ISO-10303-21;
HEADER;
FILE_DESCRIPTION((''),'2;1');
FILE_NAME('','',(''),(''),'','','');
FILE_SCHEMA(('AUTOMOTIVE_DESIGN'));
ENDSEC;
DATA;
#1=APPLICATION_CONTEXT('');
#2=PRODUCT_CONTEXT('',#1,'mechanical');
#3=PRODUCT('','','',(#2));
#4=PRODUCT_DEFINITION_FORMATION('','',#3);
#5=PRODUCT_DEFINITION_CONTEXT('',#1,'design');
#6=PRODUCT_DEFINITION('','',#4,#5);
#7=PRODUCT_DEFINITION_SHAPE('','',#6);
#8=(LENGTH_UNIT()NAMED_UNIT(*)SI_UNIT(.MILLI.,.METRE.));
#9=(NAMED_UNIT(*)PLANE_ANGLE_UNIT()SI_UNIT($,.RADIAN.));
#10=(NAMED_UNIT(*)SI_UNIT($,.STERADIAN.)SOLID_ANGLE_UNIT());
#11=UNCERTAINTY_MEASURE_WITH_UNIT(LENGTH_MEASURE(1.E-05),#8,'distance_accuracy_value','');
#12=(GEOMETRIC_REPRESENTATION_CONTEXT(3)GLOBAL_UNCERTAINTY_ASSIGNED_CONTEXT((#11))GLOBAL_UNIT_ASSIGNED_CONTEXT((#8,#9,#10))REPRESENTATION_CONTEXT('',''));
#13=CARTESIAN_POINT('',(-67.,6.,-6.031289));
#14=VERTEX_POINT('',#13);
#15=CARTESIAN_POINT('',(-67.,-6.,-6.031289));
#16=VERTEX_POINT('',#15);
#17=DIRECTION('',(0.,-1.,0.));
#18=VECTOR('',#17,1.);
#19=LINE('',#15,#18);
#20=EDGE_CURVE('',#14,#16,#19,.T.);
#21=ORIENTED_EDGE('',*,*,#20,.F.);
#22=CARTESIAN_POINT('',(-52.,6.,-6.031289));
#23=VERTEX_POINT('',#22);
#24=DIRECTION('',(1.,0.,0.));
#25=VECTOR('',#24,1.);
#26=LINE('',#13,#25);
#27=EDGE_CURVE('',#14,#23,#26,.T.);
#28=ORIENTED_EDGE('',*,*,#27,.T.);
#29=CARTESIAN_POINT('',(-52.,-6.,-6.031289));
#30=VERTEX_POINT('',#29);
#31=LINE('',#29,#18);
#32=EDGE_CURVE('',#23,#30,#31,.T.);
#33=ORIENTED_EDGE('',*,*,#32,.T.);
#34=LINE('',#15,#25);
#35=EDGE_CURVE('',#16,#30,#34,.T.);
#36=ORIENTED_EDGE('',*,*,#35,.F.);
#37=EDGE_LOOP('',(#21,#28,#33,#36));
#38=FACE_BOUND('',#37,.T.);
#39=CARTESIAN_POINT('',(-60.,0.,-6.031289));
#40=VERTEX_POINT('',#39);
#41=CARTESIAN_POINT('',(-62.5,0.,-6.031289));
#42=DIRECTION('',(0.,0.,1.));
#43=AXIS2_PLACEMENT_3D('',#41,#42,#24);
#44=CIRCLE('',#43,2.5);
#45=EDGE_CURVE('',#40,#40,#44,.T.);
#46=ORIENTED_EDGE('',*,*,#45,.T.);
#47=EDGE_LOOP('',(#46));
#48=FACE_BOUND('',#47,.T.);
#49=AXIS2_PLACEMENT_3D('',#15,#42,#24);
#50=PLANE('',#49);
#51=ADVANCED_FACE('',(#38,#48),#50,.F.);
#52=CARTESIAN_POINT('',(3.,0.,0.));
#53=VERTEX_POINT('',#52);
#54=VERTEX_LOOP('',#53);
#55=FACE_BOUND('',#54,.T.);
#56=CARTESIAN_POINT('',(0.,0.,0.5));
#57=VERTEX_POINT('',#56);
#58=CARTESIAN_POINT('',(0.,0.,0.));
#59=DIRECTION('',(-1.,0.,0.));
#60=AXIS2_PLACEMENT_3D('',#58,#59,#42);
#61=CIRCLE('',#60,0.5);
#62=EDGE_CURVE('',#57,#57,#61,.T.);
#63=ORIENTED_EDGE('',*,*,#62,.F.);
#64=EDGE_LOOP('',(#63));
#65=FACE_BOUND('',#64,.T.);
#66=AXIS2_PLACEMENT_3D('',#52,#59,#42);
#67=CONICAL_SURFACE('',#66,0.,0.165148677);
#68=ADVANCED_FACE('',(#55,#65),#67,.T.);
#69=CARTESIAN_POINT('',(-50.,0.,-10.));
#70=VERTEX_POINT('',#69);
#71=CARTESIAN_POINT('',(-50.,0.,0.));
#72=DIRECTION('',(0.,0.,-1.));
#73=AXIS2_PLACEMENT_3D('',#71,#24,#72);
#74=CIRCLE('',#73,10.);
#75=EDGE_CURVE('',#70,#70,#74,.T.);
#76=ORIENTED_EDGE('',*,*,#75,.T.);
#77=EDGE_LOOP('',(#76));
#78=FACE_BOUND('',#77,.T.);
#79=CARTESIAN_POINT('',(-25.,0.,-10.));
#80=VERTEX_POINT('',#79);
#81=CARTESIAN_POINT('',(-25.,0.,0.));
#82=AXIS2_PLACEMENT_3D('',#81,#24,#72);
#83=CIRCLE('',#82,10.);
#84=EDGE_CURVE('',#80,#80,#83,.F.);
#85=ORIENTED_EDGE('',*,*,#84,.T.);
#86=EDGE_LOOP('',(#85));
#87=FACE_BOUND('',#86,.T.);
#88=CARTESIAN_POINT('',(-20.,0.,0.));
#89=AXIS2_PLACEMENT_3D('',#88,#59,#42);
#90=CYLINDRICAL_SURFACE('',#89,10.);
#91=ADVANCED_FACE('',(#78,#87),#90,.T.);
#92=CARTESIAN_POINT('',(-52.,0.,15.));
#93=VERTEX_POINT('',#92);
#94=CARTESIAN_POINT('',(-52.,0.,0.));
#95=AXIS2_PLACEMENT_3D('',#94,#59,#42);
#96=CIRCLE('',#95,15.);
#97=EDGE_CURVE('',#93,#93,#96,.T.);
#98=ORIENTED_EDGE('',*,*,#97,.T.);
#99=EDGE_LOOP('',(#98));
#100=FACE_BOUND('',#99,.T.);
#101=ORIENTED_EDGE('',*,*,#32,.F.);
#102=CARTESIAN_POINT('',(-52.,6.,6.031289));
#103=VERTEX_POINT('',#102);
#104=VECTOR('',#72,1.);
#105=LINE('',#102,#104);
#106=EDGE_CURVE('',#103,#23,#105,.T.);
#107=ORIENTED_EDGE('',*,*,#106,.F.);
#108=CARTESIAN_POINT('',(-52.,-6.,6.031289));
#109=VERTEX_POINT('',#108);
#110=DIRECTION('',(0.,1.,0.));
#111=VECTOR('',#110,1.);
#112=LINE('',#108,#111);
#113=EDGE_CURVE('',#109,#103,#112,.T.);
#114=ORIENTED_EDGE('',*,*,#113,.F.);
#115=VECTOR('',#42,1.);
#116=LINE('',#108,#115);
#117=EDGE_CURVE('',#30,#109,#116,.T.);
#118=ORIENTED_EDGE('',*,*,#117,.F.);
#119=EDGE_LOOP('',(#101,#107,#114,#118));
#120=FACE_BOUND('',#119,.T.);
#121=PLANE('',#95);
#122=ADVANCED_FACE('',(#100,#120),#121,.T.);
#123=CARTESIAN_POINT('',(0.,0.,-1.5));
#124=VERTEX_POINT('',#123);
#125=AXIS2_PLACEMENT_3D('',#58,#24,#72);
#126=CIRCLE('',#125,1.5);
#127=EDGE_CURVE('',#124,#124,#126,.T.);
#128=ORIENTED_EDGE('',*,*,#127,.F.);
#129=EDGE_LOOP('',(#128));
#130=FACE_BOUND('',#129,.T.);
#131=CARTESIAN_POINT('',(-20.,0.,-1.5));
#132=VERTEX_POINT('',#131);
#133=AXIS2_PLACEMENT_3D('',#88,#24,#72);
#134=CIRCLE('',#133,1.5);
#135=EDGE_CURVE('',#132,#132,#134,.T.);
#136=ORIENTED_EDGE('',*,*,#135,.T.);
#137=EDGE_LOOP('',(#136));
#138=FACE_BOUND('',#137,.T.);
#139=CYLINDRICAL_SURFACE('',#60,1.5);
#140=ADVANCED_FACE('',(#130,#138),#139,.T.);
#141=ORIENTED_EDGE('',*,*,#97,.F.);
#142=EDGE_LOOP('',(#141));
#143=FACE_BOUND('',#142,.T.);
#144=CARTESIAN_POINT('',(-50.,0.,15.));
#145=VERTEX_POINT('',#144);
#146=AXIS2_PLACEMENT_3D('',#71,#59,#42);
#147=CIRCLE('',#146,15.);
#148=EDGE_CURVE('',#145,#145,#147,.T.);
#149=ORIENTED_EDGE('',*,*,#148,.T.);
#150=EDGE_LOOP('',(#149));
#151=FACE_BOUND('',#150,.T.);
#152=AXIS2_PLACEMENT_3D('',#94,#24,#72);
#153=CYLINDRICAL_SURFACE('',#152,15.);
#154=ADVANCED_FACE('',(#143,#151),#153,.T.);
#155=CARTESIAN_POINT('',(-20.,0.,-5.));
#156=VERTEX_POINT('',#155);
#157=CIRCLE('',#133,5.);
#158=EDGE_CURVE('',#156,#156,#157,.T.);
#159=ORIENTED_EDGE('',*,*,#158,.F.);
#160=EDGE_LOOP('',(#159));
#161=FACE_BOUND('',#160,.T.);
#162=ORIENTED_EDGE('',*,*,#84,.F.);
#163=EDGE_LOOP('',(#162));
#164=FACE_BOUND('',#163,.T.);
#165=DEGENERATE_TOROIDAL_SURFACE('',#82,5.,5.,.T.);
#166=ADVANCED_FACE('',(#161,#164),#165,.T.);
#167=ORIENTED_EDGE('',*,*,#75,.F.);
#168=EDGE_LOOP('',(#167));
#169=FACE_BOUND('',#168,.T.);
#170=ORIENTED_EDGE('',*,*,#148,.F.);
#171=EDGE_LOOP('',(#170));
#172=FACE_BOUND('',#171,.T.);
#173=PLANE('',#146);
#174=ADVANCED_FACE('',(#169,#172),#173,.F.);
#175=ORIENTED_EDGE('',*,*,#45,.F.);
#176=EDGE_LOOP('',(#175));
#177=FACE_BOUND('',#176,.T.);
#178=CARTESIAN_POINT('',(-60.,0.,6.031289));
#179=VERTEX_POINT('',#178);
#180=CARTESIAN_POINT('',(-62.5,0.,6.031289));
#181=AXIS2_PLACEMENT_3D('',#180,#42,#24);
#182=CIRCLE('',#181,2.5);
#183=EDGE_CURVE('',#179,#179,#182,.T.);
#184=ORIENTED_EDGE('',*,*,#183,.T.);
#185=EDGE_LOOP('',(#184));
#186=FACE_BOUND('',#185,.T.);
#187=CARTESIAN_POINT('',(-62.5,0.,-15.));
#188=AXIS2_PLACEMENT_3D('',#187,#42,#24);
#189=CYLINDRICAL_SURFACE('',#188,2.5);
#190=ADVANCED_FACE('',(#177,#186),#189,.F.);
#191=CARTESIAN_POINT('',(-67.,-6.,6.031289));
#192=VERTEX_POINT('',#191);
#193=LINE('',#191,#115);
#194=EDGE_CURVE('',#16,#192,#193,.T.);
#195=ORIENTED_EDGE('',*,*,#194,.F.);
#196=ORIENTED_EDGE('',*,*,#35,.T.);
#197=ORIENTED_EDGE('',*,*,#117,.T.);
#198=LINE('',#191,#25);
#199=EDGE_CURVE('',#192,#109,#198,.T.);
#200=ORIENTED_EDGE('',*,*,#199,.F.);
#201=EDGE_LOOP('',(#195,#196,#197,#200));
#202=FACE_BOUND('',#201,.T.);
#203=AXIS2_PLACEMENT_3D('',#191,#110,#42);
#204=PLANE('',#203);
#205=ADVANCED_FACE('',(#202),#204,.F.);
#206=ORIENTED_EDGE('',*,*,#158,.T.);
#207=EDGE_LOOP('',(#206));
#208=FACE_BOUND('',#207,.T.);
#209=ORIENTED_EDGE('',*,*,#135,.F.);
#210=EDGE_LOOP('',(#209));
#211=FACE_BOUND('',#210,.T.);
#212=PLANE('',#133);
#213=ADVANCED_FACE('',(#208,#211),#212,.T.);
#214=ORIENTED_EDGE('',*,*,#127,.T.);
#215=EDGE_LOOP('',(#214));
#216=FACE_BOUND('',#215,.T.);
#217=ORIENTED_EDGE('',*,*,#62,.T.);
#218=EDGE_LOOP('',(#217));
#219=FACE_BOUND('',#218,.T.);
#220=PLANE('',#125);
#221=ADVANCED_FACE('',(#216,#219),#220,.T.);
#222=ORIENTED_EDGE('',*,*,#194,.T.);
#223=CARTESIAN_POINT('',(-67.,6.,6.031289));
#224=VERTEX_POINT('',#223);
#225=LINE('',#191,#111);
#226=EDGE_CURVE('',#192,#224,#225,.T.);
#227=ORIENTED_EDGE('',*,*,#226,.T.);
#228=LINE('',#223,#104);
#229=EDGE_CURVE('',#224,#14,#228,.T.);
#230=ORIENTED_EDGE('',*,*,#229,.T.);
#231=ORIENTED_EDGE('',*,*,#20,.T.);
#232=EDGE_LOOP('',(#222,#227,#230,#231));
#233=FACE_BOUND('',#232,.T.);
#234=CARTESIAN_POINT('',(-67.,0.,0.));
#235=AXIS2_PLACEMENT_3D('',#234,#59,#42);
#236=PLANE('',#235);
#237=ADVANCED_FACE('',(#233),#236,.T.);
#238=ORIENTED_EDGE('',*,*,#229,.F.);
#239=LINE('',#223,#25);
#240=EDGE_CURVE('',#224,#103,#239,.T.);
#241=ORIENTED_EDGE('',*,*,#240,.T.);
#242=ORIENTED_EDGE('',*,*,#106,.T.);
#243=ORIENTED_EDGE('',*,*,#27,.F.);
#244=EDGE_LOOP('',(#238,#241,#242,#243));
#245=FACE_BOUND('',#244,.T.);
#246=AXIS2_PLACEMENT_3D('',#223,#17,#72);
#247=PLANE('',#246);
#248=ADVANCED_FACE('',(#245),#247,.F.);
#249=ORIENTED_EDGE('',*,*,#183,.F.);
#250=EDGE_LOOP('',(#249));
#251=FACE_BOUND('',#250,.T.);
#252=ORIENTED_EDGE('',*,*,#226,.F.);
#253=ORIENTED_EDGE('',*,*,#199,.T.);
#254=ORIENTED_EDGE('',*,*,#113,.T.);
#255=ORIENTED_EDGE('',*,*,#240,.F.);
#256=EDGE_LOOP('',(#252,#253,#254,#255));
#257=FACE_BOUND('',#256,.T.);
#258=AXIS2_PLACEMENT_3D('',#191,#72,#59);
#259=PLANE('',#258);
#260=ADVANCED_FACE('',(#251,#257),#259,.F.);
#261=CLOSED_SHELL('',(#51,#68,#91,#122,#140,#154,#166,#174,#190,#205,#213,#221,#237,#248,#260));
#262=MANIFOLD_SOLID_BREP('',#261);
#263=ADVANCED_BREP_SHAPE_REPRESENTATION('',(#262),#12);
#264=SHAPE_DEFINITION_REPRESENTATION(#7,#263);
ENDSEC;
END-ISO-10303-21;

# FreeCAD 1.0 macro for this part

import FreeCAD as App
import Part
import Sketcher
from FreeCAD import Vector
Q = App.Units.Quantity


def edges_at(feature, points):
    """Names of the edges that pass closest to the given points."""
    edges = feature.Shape.Edges
    near = lambda p: min(range(len(edges)), key=lambda i: edges[i].distToShape(Part.Vertex(*p))[0])
    return sorted({f"Edge{near(p) + 1}" for p in points})

doc = App.newDocument("Part")
params = doc.addObject("Spreadsheet::Sheet", "Params")
for row, (alias, value) in enumerate([
    ("sketch1_diameter", "20 mm"),
    ("pad1_length", "30 mm"),
    ("sketch2_diameter", "30 mm"),
    ("pad2_length", "2 mm"),
    ("fillet_radius", "5 mm"),
    ("sketch3_diameter", "3 mm"),
    ("pad3_length", "20 mm"),
    ("sketch4_height", "12 mm"),
    ("pad4_length", "15 mm"),
    ("sketch5_diameter", "5 mm"),
    ("sketch6_height", "3 mm"),
    ("sketch6_width", "0.5 mm"),
    ("revolution_angle", "360 deg"),
], start=1):
    params.set(f"A{row}", alias)
    params.set(f"B{row}", "=" + value)
    params.setAlias(f"B{row}", alias)

body = doc.addObject("PartDesign::Body", "Body")

sketch1 = body.newObject("Sketcher::SketchObject", "Sketch")
sketch1.AttachmentSupport = (doc.getObject("XY_Plane"), [""])
sketch1.MapMode = "FlatFace"
sketch1.addGeometry(Part.Circle(Vector(0, 0, 0), Vector(0, 0, 1), 10), False)
sketch1.addConstraint([
    Sketcher.Constraint("Coincident", 0, 3, -1, 1),
    Sketcher.Constraint("Diameter", 0, Q("20 mm")),
])
sketch1.setExpression("Constraints[1]", "Params.sketch1_diameter")
pad1 = body.newObject("PartDesign::Pad", "Pad")
pad1.Profile = sketch1
pad1.setExpression("Length", "Params.pad1_length")

sketch2 = body.newObject("Sketcher::SketchObject", "Sketch001")
sketch2.AttachmentSupport = (doc.getObject("XY_Plane"), [""])
sketch2.MapMode = "FlatFace"
sketch2.addGeometry(Part.Circle(Vector(0, 0, 0), Vector(0, 0, 1), 15), False)
sketch2.addConstraint([
    Sketcher.Constraint("Coincident", 0, 3, -1, 1),
    Sketcher.Constraint("Diameter", 0, Q("30 mm")),
])
sketch2.setExpression("Constraints[1]", "Params.sketch2_diameter")
pad2 = body.newObject("PartDesign::Pad", "Pad001")
pad2.Profile = sketch2
pad2.setExpression("Length", "Params.pad2_length")
pad2.Reversed = True
doc.recompute()

fillet = body.newObject("PartDesign::Fillet", "Fillet")
fillet.Base = (pad2, edges_at(pad2, [(-10, 0, 30)]))
fillet.setExpression("Radius", "Params.fillet_radius")

sketch3 = body.newObject("Sketcher::SketchObject", "Sketch002")
sketch3.AttachmentSupport = (doc.getObject("XY_Plane"), [""])
sketch3.MapMode = "FlatFace"
sketch3.AttachmentOffset = App.Placement(Vector(0, 0, 30), App.Rotation())
sketch3.addGeometry(Part.Circle(Vector(0, 0, 0), Vector(0, 0, 1), 1.5), False)
sketch3.addConstraint([
    Sketcher.Constraint("Coincident", 0, 3, -1, 1),
    Sketcher.Constraint("Diameter", 0, Q("3 mm")),
])
sketch3.setExpression("Constraints[1]", "Params.sketch3_diameter")
pad3 = body.newObject("PartDesign::Pad", "Pad002")
pad3.Profile = sketch3
pad3.setExpression("Length", "Params.pad3_length")

sketch4 = body.newObject("Sketcher::SketchObject", "Sketch003")
sketch4.AttachmentSupport = (doc.getObject("XY_Plane"), [""])
sketch4.MapMode = "FlatFace"
sketch4.AttachmentOffset = App.Placement(Vector(0, 0, -2), App.Rotation())
sketch4.addGeometry([
    Part.LineSegment(Vector(6, 6, 0), Vector(6, -6, 0)),
    Part.LineSegment(Vector(6, -6, 0), Vector(-6, -6, 0)),
    Part.LineSegment(Vector(-6, -6, 0), Vector(-6, 6, 0)),
    Part.LineSegment(Vector(-6, 6, 0), Vector(6, 6, 0)),
], False)
sketch4.addConstraint([
    Sketcher.Constraint("Coincident", 0, 2, 1, 1),
    Sketcher.Constraint("Coincident", 1, 2, 2, 1),
    Sketcher.Constraint("Coincident", 2, 2, 3, 1),
    Sketcher.Constraint("Coincident", 3, 2, 0, 1),
    Sketcher.Constraint("Vertical", 0),
    Sketcher.Constraint("Horizontal", 1),
    Sketcher.Constraint("Vertical", 2),
    Sketcher.Constraint("Horizontal", 3),
    Sketcher.Constraint("Symmetric", 0, 2, 2, 2, -1, 1),
    Sketcher.Constraint("DistanceY", 0, 2, 0, 1, Q("12 mm")),
    Sketcher.Constraint("DistanceX", 1, 2, 1, 1, Q("12.062579 mm")),
])
sketch4.setExpression("Constraints[9]", "Params.sketch4_height")
pad4 = body.newObject("PartDesign::Pad", "Pad003")
pad4.Profile = sketch4
pad4.setExpression("Length", "Params.pad4_length")
pad4.Reversed = True

sketch5 = body.newObject("Sketcher::SketchObject", "Sketch004")
sketch5.AttachmentSupport = (doc.getObject("YZ_Plane"), [""])
sketch5.MapMode = "FlatFace"
sketch5.AttachmentOffset = App.Placement(Vector(0, 0, -6.031289), App.Rotation())
sketch5.addGeometry(Part.Circle(Vector(0, -12.5, 0), Vector(0, 0, 1), 2.5), False)
sketch5.addConstraint([
    Sketcher.Constraint("PointOnObject", 0, 3, -2),
    Sketcher.Constraint("Diameter", 0, Q("5 mm")),
    Sketcher.Constraint("DistanceY", 0, 3, -1, 1, Q("12.5 mm")),
])
sketch5.setExpression("Constraints[1]", "Params.sketch5_diameter")
pocket1 = body.newObject("PartDesign::Pocket", "Pocket")
pocket1.Profile = sketch5
pocket1.Type = "ThroughAll"
pocket1.Reversed = True

sketch6 = body.newObject("Sketcher::SketchObject", "Sketch005")
sketch6.AttachmentSupport = (doc.getObject("XZ_Plane"), [""])
sketch6.MapMode = "FlatFace"
sketch6.addGeometry([
    Part.LineSegment(Vector(0, 53, 0), Vector(0.5, 50, 0)),
    Part.LineSegment(Vector(0.5, 50, 0), Vector(0, 50, 0)),
    Part.LineSegment(Vector(0, 50, 0), Vector(0, 53, 0)),
], False)
sketch6.addConstraint([
    Sketcher.Constraint("Coincident", 0, 2, 1, 1),
    Sketcher.Constraint("Coincident", 1, 2, 2, 1),
    Sketcher.Constraint("Coincident", 2, 2, 0, 1),
    Sketcher.Constraint("Horizontal", 1),
    Sketcher.Constraint("Vertical", 2),
    Sketcher.Constraint("PointOnObject", 1, 2, -2),
    Sketcher.Constraint("DistanceY", 2, 1, 2, 2, Q("3 mm")),
    Sketcher.Constraint("DistanceX", 1, 2, 1, 1, Q("0.5 mm")),
    Sketcher.Constraint("DistanceY", -1, 1, 0, 2, Q("50 mm")),
])
sketch6.setExpression("Constraints[6]", "Params.sketch6_height")
sketch6.setExpression("Constraints[7]", "Params.sketch6_width")
revolution = body.newObject("PartDesign::Revolution", "Revolution")
revolution.Profile = sketch6
revolution.ReferenceAxis = (sketch6, ["V_Axis"])
revolution.setExpression("Angle", "Params.revolution_angle")
body2 = doc.addObject("PartDesign::Body", "Body001")
doc.recompute()

body.Placement = App.Placement(Vector(0, 0, -50), App.Rotation(Vector(0, 0, 1), 0))
boolean = body2.newObject("PartDesign::Boolean", "Boolean")
boolean.Type = "Fuse"
boolean.addObjects([body])
body3 = doc.addObject("PartDesign::Body", "Body002")
doc.recompute()

body2.Placement = App.Placement(Vector(0, 0, 0), App.Rotation(Vector(0, 1, 0), 90))
boolean2 = body3.newObject("PartDesign::Boolean", "Boolean001")
boolean2.Type = "Fuse"
boolean2.addObjects([body2])

doc.recompute()
